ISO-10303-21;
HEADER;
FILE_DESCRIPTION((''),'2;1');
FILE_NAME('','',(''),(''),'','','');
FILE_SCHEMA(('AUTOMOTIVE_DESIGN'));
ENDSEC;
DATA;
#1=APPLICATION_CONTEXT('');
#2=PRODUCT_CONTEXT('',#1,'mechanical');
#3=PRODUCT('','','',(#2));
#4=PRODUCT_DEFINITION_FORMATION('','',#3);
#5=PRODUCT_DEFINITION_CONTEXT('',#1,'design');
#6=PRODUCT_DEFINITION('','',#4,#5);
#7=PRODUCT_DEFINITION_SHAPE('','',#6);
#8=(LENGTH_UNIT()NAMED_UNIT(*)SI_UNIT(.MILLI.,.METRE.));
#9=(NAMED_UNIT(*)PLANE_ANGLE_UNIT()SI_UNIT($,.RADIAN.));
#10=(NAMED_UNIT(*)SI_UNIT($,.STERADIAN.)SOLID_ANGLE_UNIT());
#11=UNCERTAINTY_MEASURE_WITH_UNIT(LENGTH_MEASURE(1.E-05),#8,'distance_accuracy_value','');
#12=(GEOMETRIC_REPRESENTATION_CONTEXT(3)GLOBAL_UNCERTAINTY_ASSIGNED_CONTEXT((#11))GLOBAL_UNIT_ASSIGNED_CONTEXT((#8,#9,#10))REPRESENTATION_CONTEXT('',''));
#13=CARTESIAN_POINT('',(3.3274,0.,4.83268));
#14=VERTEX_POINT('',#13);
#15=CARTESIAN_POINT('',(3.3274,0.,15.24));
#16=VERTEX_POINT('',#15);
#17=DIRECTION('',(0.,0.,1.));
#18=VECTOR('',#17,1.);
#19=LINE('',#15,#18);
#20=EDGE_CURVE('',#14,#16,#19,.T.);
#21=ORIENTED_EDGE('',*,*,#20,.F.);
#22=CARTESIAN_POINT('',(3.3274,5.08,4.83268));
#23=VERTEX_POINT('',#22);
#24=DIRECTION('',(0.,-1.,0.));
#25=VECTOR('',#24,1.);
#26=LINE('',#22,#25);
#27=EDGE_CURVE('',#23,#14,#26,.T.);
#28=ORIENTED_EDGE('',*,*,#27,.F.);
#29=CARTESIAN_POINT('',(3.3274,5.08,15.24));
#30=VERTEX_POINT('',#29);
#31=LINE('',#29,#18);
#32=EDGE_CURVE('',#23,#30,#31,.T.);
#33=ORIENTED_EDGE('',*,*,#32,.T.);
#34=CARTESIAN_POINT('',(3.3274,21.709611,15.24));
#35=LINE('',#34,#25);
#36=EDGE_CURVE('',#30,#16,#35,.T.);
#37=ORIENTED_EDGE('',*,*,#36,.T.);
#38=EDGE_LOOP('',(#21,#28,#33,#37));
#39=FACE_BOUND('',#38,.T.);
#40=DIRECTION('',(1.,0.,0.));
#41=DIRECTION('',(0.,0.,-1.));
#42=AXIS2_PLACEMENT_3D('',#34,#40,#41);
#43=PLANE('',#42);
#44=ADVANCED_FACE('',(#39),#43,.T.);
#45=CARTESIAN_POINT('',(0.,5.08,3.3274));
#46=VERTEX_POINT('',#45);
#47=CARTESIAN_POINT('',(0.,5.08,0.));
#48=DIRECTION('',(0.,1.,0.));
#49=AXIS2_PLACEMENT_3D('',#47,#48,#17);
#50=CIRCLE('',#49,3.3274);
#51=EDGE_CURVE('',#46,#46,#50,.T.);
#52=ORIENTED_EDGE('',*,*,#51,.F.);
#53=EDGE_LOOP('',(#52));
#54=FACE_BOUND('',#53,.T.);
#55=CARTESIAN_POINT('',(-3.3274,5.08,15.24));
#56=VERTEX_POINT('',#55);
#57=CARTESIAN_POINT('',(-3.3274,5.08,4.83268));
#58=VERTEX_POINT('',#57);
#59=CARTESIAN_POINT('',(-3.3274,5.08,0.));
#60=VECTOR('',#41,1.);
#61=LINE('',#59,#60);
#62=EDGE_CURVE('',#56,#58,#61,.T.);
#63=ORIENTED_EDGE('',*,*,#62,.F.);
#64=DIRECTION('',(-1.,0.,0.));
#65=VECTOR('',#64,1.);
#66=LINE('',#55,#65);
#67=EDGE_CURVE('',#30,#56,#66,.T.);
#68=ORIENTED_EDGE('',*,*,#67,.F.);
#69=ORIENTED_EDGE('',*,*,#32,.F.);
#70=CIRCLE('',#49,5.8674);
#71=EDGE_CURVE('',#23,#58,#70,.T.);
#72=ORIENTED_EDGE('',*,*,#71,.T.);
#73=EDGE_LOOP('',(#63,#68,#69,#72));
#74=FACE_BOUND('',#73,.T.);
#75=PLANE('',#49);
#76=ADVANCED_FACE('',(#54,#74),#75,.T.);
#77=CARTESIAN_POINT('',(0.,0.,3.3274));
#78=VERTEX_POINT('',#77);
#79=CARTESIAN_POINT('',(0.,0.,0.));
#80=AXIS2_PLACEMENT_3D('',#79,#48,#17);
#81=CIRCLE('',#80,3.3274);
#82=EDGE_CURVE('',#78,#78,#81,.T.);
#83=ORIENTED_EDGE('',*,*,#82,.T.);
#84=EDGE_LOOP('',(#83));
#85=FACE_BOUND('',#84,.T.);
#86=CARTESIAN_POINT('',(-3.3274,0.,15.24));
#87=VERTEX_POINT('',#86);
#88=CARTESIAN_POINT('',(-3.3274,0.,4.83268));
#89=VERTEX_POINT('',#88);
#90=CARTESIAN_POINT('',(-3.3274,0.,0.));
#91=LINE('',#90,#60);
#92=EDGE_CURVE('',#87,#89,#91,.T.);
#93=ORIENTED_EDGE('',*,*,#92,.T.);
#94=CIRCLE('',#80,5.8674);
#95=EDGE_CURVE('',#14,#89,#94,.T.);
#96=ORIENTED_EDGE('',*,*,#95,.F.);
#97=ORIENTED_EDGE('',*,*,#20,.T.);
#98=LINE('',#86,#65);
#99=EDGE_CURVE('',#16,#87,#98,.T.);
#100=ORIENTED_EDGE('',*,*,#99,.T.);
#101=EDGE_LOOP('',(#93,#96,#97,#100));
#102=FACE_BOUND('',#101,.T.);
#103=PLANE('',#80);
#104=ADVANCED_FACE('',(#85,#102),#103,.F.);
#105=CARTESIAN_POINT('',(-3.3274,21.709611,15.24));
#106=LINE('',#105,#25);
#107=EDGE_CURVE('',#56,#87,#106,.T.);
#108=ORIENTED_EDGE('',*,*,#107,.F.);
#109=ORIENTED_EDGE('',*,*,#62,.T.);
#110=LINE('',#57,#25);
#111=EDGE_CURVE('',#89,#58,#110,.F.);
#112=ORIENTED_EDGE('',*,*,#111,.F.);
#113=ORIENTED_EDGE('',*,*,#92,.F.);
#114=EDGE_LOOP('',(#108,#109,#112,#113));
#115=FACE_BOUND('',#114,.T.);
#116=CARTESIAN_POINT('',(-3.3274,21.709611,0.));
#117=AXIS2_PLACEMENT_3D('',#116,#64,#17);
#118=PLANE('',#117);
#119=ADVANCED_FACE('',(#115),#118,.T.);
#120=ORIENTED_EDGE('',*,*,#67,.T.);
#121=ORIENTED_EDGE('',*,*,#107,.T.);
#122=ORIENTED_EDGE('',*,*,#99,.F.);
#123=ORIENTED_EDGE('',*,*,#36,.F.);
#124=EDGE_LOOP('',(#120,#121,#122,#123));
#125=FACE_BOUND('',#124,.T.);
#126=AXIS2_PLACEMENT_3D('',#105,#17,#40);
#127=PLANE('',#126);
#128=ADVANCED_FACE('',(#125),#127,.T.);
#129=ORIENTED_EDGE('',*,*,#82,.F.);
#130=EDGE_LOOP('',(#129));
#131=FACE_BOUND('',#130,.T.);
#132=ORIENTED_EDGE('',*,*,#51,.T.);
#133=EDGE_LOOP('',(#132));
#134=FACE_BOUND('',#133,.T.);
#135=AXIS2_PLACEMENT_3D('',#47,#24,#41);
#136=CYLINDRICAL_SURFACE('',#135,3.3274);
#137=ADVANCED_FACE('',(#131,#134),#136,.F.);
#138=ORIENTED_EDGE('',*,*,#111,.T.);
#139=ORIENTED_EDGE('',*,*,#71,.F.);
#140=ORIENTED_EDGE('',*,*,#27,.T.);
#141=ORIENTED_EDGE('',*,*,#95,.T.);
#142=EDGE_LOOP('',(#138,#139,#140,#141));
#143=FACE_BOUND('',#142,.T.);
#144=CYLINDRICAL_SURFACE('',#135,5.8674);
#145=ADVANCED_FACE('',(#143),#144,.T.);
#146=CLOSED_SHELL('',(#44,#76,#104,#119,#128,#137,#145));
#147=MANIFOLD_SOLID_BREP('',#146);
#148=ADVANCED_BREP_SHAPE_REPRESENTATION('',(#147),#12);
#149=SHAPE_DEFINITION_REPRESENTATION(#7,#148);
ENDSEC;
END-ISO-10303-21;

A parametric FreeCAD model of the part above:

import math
import FreeCAD as App
import Part
import Sketcher

V = App.Vector
Q = App.Units.Quantity

doc = App.newDocument("Part")
body = doc.addObject("PartDesign::Body", "Body")

# Sketch on XZ plane
sketch1 = doc.addObject("Sketcher::SketchObject", "Sketch")
body.addObject(sketch1)
sketch1.AttachmentSupport = (doc.XZ_Plane, [""])
sketch1.MapMode = "FlatFace"
sketch1.addGeometry([
    Part.Circle(V(0, 0, 0), V(0, 0, 1), 5.9),
    Part.Circle(V(0, 0, 0), V(0, 0, 1), 3.3),
], False)
sketch1.addConstraint([
    Sketcher.Constraint("Coincident", 0, 3, -1, 1),
    Sketcher.Constraint("Coincident", 1, 3, -1, 1),
    Sketcher.Constraint("Diameter", 0, Q("0.462 in")),
    Sketcher.Constraint("Diameter", 1, Q("0.262 in")),
])
pad1 = doc.addObject("PartDesign::Pad", "Pad")
body.addObject(pad1)
pad1.Profile = sketch1
pad1.Length = Q("0.2 in")
pad1.Reversed = True

# Sketch on XZ plane
sketch2 = doc.addObject("Sketcher::SketchObject", "Sketch001")
body.addObject(sketch2)
sketch2.AttachmentSupport = (doc.XZ_Plane, [""])
sketch2.MapMode = "FlatFace"
sketch2.addGeometry([
    Part.LineSegment(V(-3.3, 15.2, 0), V(-3.3, 0, 0)),
    Part.ArcOfCircle(Part.Circle(V(0, 0, 0), V(0, 0, 1), 3.3), math.radians(0), math.radians(180)),
    Part.LineSegment(V(3.3, 0, 0), V(3.3, 15.2, 0)),
    Part.LineSegment(V(3.3, 15.2, 0), V(-3.3, 15.2, 0)),
], False)
sketch2.addConstraint([
    Sketcher.Constraint("Tangent", 0, 2, 1, 2),
    Sketcher.Constraint("Tangent", 1, 1, 2, 1),
    Sketcher.Constraint("Coincident", 2, 2, 3, 1),
    Sketcher.Constraint("Coincident", 3, 2, 0, 1),
    Sketcher.Constraint("Vertical", 0),
    Sketcher.Constraint("Vertical", 2),
    Sketcher.Constraint("Horizontal", 3),
    Sketcher.Constraint("Coincident", 1, 3, -1, 1),
    Sketcher.Constraint("DistanceY", 0, 2, 0, 1, Q("0.6 in")),
    Sketcher.Constraint("Radius", 1, Q("0.131 in")),
])
pad2 = doc.addObject("PartDesign::Pad", "Pad001")
body.addObject(pad2)
pad2.Profile = sketch2
pad2.Length = Q("0.2 in")
pad2.Reversed = True

doc.recompute()
